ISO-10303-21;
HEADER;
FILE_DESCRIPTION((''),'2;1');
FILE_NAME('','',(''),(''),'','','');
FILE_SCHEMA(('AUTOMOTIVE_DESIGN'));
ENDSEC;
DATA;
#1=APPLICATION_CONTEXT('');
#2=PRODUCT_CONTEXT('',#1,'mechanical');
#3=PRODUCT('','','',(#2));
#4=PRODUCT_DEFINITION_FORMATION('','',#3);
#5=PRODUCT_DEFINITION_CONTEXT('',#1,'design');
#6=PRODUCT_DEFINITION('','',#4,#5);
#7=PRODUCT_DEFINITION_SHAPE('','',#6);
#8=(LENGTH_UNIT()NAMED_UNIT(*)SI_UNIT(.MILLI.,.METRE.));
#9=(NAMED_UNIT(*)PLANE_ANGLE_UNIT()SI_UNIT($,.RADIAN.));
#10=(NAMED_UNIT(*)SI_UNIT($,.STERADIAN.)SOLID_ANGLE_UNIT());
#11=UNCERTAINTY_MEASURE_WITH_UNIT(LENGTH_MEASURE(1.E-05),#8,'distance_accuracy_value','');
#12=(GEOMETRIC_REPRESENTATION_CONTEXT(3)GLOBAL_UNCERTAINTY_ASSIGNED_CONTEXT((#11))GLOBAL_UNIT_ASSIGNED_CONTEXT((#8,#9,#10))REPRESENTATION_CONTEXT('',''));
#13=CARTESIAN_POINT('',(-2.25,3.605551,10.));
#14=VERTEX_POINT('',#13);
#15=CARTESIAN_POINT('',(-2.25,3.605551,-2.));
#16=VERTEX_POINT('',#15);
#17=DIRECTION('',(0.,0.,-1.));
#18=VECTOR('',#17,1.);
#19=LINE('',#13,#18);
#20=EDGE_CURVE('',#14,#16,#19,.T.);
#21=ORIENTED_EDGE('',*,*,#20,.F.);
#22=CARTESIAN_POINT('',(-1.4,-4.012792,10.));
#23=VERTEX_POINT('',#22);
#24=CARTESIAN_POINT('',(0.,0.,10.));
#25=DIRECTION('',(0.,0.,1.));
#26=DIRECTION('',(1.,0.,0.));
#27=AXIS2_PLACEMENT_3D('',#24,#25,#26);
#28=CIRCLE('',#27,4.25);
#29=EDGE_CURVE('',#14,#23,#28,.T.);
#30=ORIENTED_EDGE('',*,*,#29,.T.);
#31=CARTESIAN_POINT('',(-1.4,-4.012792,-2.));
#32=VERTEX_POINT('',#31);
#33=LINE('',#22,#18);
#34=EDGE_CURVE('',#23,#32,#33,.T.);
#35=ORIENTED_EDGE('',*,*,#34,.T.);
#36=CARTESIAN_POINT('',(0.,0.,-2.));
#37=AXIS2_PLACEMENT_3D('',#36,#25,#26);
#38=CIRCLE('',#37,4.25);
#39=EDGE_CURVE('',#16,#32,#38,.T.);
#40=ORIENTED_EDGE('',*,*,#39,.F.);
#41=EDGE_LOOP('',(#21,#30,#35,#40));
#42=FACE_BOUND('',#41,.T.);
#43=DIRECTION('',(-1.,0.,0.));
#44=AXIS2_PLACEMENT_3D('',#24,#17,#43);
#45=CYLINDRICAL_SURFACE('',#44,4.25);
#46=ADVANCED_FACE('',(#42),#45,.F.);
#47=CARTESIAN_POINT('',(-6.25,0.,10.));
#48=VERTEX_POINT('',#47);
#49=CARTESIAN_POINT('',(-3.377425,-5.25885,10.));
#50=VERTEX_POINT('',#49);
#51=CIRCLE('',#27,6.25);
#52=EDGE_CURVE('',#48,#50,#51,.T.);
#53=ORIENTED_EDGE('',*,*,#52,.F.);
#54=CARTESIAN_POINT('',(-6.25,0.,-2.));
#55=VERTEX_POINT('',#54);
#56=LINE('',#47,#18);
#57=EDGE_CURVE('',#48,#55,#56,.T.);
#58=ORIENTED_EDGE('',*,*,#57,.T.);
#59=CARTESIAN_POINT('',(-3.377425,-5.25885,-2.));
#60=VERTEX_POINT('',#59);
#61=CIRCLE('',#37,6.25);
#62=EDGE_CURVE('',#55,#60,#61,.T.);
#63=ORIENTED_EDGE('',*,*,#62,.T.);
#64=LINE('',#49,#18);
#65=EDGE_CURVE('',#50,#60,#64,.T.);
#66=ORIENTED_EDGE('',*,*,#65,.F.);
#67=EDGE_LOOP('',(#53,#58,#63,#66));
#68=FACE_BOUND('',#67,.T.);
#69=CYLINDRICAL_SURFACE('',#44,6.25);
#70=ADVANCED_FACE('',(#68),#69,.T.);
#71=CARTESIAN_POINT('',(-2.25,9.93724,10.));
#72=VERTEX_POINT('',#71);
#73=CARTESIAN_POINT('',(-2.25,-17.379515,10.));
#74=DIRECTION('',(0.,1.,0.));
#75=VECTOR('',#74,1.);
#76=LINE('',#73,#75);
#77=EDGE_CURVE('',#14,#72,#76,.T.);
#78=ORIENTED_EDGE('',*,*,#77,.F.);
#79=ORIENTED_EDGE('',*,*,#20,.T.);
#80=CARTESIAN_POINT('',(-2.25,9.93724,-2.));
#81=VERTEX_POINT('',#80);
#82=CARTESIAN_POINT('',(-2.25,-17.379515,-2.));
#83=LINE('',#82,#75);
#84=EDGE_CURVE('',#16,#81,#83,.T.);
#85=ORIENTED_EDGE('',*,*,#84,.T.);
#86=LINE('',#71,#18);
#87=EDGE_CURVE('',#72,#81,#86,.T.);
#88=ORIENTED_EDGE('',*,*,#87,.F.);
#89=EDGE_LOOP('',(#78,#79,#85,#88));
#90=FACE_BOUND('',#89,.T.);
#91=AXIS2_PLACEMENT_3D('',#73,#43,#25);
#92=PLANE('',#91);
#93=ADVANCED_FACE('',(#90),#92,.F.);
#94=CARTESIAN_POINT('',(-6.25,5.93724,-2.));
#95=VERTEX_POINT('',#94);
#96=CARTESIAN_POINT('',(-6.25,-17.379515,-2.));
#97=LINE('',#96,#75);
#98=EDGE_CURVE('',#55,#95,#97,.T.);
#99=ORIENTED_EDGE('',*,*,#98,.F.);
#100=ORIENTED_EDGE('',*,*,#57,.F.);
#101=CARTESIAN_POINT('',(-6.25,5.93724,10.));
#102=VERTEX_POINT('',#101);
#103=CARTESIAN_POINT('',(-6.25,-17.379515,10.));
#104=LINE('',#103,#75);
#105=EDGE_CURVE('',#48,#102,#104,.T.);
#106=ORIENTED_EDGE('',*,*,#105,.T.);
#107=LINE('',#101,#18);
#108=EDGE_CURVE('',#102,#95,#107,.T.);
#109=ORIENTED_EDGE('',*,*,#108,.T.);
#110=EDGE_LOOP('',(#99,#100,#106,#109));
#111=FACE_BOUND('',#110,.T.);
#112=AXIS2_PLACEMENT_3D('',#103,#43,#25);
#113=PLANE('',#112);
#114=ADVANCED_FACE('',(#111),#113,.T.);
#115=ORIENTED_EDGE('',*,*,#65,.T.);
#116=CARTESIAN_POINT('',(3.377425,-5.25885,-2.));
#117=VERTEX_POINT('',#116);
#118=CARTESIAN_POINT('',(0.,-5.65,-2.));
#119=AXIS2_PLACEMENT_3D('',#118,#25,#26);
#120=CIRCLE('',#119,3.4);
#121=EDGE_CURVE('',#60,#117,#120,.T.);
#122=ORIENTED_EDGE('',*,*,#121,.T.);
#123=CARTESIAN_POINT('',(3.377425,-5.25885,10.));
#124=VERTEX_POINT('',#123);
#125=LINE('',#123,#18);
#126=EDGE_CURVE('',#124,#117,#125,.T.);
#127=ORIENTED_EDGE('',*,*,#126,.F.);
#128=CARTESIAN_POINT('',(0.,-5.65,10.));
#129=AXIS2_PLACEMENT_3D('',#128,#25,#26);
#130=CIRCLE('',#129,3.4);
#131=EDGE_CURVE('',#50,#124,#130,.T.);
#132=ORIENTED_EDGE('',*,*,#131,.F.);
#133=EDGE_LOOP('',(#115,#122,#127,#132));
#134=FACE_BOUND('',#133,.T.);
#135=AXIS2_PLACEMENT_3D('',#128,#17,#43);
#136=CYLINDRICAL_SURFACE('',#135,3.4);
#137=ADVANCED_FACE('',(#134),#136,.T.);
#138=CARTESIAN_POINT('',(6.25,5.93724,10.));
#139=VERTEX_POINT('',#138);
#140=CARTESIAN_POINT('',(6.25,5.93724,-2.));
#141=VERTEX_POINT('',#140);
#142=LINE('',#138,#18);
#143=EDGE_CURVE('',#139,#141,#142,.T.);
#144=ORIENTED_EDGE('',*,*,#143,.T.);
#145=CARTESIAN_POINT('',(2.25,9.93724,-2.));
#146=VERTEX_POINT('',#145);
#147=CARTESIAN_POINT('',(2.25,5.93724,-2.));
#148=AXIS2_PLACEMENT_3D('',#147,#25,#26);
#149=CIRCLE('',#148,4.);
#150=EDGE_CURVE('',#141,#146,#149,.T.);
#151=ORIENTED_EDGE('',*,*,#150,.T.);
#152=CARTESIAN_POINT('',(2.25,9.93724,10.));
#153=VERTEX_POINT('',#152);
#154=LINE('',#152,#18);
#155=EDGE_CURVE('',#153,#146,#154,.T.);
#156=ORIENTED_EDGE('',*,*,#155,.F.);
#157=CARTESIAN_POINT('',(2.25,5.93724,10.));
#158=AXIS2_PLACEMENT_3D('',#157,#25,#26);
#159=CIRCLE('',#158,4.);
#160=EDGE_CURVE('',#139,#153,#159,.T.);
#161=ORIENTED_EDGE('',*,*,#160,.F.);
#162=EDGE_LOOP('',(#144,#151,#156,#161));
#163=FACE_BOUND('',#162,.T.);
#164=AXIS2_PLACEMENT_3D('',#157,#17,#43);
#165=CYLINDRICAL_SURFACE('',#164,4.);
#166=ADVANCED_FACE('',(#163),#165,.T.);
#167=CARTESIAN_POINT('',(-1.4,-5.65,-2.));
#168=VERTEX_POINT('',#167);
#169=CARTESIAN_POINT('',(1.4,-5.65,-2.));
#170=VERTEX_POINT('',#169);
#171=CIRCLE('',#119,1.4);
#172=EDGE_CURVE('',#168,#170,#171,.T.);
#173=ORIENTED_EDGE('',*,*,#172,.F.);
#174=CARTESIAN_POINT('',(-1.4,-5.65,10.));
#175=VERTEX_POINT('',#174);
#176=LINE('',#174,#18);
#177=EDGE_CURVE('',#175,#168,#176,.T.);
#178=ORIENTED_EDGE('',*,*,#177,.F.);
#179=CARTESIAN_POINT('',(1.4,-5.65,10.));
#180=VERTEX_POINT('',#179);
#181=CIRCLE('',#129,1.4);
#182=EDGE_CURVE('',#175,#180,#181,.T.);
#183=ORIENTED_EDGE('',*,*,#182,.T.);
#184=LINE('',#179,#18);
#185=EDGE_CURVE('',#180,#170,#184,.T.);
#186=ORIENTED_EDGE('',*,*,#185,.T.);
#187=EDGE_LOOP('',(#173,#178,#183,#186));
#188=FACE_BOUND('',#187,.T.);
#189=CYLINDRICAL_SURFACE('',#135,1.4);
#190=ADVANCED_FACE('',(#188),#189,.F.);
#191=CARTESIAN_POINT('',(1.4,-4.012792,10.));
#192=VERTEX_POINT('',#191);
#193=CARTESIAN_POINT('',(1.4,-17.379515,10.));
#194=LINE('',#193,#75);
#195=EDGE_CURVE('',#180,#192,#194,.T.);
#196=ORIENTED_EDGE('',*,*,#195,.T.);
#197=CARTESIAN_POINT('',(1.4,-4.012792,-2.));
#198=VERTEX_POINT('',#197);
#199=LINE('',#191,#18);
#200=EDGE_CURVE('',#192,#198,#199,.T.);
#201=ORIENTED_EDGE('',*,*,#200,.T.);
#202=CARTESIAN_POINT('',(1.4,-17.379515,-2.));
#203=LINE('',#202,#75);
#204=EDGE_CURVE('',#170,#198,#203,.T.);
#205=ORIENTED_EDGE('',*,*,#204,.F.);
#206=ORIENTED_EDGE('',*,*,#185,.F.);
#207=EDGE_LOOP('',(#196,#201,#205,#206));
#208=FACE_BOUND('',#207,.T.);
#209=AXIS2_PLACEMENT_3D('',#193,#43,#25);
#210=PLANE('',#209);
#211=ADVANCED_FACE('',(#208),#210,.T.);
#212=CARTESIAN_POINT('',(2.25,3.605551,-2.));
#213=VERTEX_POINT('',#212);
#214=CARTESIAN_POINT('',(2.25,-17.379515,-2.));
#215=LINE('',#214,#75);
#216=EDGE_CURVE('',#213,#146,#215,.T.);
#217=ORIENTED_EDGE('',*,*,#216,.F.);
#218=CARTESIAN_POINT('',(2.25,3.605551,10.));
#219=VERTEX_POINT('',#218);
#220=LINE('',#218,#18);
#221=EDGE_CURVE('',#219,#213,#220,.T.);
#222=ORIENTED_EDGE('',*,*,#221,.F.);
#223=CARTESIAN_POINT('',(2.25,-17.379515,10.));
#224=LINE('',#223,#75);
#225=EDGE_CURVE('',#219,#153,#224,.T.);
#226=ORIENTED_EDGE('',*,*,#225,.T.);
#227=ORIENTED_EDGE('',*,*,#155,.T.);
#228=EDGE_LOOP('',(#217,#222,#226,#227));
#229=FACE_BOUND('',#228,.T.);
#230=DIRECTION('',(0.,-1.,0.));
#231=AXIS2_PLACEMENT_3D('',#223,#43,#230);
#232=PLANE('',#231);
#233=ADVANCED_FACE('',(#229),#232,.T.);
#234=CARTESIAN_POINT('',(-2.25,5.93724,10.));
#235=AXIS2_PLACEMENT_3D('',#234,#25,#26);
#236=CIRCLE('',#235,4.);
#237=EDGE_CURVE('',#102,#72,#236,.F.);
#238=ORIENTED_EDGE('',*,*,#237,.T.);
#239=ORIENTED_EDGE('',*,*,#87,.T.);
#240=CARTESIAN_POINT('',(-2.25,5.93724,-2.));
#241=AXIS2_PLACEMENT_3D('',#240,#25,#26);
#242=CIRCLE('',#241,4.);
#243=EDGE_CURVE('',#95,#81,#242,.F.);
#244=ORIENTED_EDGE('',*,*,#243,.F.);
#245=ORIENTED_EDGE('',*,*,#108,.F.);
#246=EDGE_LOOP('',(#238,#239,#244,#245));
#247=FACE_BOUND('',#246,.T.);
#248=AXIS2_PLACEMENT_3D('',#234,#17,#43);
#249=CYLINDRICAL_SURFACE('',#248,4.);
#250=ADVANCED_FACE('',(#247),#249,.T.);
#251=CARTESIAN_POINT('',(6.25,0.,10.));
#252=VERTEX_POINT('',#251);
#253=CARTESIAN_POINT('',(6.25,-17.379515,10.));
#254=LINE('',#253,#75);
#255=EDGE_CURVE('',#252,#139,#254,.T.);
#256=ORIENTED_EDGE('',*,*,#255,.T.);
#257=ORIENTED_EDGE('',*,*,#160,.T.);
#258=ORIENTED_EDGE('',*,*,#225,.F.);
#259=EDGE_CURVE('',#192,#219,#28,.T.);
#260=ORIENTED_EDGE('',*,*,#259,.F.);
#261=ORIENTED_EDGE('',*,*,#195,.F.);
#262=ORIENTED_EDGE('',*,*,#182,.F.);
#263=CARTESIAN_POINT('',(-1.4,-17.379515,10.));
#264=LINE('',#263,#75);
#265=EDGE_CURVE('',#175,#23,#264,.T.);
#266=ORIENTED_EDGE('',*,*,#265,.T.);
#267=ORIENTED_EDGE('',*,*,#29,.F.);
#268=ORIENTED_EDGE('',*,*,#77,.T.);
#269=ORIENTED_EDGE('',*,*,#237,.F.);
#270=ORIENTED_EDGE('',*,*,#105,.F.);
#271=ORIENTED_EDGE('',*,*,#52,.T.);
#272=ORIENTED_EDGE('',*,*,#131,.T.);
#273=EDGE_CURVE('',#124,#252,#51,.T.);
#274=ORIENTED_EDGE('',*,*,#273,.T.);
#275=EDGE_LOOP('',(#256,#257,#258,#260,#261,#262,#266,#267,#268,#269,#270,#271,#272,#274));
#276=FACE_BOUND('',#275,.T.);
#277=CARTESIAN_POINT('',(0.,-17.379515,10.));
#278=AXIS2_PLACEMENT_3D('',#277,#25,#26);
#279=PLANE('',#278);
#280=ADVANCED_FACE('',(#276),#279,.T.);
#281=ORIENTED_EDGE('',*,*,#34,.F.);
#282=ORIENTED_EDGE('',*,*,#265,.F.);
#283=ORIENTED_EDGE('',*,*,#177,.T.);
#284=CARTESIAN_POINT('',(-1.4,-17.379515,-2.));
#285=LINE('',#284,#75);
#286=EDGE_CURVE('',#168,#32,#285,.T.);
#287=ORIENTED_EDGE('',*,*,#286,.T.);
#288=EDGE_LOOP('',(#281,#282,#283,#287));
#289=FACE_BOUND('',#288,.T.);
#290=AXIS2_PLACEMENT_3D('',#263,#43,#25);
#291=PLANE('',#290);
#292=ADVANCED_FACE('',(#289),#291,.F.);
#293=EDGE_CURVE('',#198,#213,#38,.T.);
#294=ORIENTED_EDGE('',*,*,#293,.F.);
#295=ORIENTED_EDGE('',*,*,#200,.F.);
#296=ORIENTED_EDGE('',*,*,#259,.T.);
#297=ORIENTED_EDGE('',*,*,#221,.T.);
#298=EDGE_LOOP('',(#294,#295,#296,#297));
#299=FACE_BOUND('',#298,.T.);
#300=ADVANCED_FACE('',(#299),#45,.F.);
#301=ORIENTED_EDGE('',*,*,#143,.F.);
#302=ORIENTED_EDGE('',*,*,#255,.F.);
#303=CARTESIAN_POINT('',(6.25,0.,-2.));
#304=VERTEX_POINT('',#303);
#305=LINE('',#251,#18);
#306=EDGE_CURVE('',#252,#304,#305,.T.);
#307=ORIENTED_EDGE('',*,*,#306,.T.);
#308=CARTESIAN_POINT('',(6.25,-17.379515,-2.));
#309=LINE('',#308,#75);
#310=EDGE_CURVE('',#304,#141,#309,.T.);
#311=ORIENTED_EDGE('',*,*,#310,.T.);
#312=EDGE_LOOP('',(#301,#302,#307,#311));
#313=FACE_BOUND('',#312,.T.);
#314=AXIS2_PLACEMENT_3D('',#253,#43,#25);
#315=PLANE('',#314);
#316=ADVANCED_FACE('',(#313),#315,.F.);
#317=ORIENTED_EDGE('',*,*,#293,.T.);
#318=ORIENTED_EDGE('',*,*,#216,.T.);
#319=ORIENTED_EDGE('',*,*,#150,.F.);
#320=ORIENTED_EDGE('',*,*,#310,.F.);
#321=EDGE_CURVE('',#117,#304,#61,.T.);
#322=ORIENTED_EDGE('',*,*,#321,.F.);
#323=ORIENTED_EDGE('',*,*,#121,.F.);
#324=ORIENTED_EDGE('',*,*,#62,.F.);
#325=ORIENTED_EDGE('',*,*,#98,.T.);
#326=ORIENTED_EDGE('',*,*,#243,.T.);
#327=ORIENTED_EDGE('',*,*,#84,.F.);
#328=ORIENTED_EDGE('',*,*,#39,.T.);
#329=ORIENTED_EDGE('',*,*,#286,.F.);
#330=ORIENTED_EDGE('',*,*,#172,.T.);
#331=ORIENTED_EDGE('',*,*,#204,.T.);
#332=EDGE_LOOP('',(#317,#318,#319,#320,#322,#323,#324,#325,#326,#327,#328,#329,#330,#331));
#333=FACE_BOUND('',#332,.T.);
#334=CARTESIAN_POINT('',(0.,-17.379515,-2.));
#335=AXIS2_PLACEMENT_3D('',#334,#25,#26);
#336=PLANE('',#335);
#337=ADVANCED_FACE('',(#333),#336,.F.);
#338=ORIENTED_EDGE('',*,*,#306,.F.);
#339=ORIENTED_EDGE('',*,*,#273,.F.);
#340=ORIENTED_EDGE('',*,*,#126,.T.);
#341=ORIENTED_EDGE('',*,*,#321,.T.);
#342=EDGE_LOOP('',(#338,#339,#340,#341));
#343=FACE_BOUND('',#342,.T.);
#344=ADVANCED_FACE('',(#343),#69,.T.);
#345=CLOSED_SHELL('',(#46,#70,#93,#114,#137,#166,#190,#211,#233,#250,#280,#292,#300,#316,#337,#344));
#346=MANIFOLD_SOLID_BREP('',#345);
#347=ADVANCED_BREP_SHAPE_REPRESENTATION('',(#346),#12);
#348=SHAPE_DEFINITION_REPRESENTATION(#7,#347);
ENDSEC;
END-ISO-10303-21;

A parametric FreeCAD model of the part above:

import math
import FreeCAD as App
import Part
import Sketcher

doc = App.newDocument("Part")
params = doc.addObject("Spreadsheet::Sheet", "Params")
for row, (alias, value) in enumerate([
    ("sketch1_radius", "4 mm"),
    ("sketch1_radius2", "1.4 mm"),
    ("sketch1_radius3", "3.4 mm"),
    ("sketch1_radius4", "4.25 mm"),
    ("sketch1_radius5", "6.25 mm"),
    ("pad1_length", "10 mm"),
    ("sketch2_radius", "4 mm"),
    ("sketch2_radius2", "1.4 mm"),
    ("sketch2_radius3", "3.4 mm"),
    ("sketch2_radius4", "4.25 mm"),
    ("sketch2_radius5", "6.25 mm"),
    ("pad2_length", "2 mm"),
], start=1):
    params.set(f"A{row}", alias)
    params.set(f"B{row}", "=" + value)
    params.setAlias(f"B{row}", alias)

body = doc.addObject("PartDesign::Body", "Body")

sketch1 = doc.addObject("Sketcher::SketchObject", "Sketch")
body.addObject(sketch1)
sketch1.AttachmentSupport = (doc.XY_Plane, [""])
sketch1.MapMode = "FlatFace"
sketch1.addGeometry([
    Part.ArcOfCircle(Part.Circle(App.Vector(0, 0, 0), App.Vector(0, 0, 1), 4.25), math.radians(-70.766924), math.radians(58.034281)),
    Part.LineSegment(App.Vector(1.4, -4.012792, 0), App.Vector(1.4, -5.65, 0)),
    Part.ArcOfCircle(Part.Circle(App.Vector(0, -5.65, 0), App.Vector(0, 0, 1), 1.4), math.radians(180), math.radians(360)),
    Part.LineSegment(App.Vector(-1.4, -5.65, 0), App.Vector(-1.4, -4.012792, 0)),
    Part.ArcOfCircle(Part.Circle(App.Vector(0, 0, 0), App.Vector(0, 0, 1), 4.25), math.radians(121.965719), math.radians(250.766924)),
    Part.LineSegment(App.Vector(-2.25, 3.605551, 0), App.Vector(-2.25, 9.93724, 0)),
    Part.ArcOfCircle(Part.Circle(App.Vector(-2.25, 5.93724, 0), App.Vector(0, 0, 1), 4), math.radians(90), math.radians(180)),
    Part.LineSegment(App.Vector(-6.25, 5.93724, 0), App.Vector(-6.25, 0, 0)),
    Part.ArcOfCircle(Part.Circle(App.Vector(0, 0, 0), App.Vector(0, 0, 1), 6.25), math.radians(-180), math.radians(-122.710058)),
    Part.ArcOfCircle(Part.Circle(App.Vector(0, -5.65, 0), App.Vector(0, 0, 1), 3.4), math.radians(173.393823), math.radians(366.606177)),
    Part.ArcOfCircle(Part.Circle(App.Vector(0, 0, 0), App.Vector(0, 0, 1), 6.25), math.radians(-57.289942), math.radians(0)),
    Part.LineSegment(App.Vector(6.25, 0, 0), App.Vector(6.25, 5.93724, 0)),
    Part.ArcOfCircle(Part.Circle(App.Vector(2.25, 5.93724, 0), App.Vector(0, 0, 1), 4), math.radians(0), math.radians(90)),
    Part.LineSegment(App.Vector(2.25, 9.93724, 0), App.Vector(2.25, 3.605551, 0)),
], False)
sketch1.addConstraint([
    Sketcher.Constraint("Coincident", 0, 1, 1, 1),
    Sketcher.Constraint("Tangent", 1, 2, 2, 2),
    Sketcher.Constraint("Tangent", 2, 1, 3, 1),
    Sketcher.Constraint("Coincident", 3, 2, 4, 2),
    Sketcher.Constraint("Coincident", 4, 1, 5, 1),
    Sketcher.Constraint("Coincident", 5, 2, 6, 1),
    Sketcher.Constraint("Tangent", 6, 2, 7, 1),
    Sketcher.Constraint("Tangent", 7, 2, 8, 1),
    Sketcher.Constraint("Coincident", 8, 2, 9, 1),
    Sketcher.Constraint("Coincident", 9, 2, 10, 1),
    Sketcher.Constraint("Tangent", 10, 2, 11, 1),
    Sketcher.Constraint("Tangent", 11, 2, 12, 1),
    Sketcher.Constraint("Coincident", 12, 2, 13, 1),
    Sketcher.Constraint("Coincident", 13, 2, 0, 2),
    Sketcher.Constraint("Vertical", 1),
    Sketcher.Constraint("Vertical", 3),
    Sketcher.Constraint("Vertical", 5),
    Sketcher.Constraint("Vertical", 7),
    Sketcher.Constraint("Vertical", 11),
    Sketcher.Constraint("Vertical", 13),
    Sketcher.Constraint("Coincident", 0, 3, -1, 1),
    Sketcher.Constraint("Coincident", 4, 3, -1, 1),
    Sketcher.Constraint("Coincident", 8, 3, -1, 1),
    Sketcher.Constraint("Coincident", 10, 3, -1, 1),
    Sketcher.Constraint("Coincident", 9, 3, 2, 3),
    Sketcher.Constraint("Equal", 0, 4),
    Sketcher.Constraint("Equal", 8, 10),
    Sketcher.Constraint("Equal", 6, 12),
    Sketcher.Constraint("Symmetric", 5, 2, 12, 2, -2),
    Sketcher.Constraint("PointOnObject", 2, 3, -2),
    Sketcher.Constraint("Vertical", 6, 3, 4, 1),
    Sketcher.Constraint("Radius", 6, 4.0),
    Sketcher.Constraint("Radius", 2, 1.4),
    Sketcher.Constraint("Radius", 9, 3.4),
    Sketcher.Constraint("Radius", 0, 4.25),
    Sketcher.Constraint("Radius", 8, 6.25),
    Sketcher.Constraint("DistanceY", 2, 3, -1, 1, 5.65),
    Sketcher.Constraint("DistanceY", 5, 1, 5, 2, 6.331689),
])
sketch1.setExpression("Constraints[31]", "Params.sketch1_radius")
sketch1.setExpression("Constraints[32]", "Params.sketch1_radius2")
sketch1.setExpression("Constraints[33]", "Params.sketch1_radius3")
sketch1.setExpression("Constraints[34]", "Params.sketch1_radius4")
sketch1.setExpression("Constraints[35]", "Params.sketch1_radius5")
pad1 = doc.addObject("PartDesign::Pad", "Pad")
body.addObject(pad1)
pad1.Profile = sketch1
pad1.setExpression("Length", "Params.pad1_length")

sketch2 = doc.addObject("Sketcher::SketchObject", "Sketch001")
body.addObject(sketch2)
sketch2.AttachmentSupport = (doc.XY_Plane, [""])
sketch2.MapMode = "FlatFace"
sketch2.addGeometry([
    Part.ArcOfCircle(Part.Circle(App.Vector(0, 0, 0), App.Vector(0, 0, 1), 4.25), math.radians(-70.766924), math.radians(58.034281)),
    Part.LineSegment(App.Vector(1.4, -4.012792, 0), App.Vector(1.4, -5.65, 0)),
    Part.ArcOfCircle(Part.Circle(App.Vector(0, -5.65, 0), App.Vector(0, 0, 1), 1.4), math.radians(180), math.radians(360)),
    Part.LineSegment(App.Vector(-1.4, -5.65, 0), App.Vector(-1.4, -4.012792, 0)),
    Part.ArcOfCircle(Part.Circle(App.Vector(0, 0, 0), App.Vector(0, 0, 1), 4.25), math.radians(121.965719), math.radians(250.766924)),
    Part.LineSegment(App.Vector(-2.25, 3.605551, 0), App.Vector(-2.25, 9.93724, 0)),
    Part.ArcOfCircle(Part.Circle(App.Vector(-2.25, 5.93724, 0), App.Vector(0, 0, 1), 4), math.radians(90), math.radians(180)),
    Part.LineSegment(App.Vector(-6.25, 5.93724, 0), App.Vector(-6.25, 0, 0)),
    Part.ArcOfCircle(Part.Circle(App.Vector(0, 0, 0), App.Vector(0, 0, 1), 6.25), math.radians(-180), math.radians(-122.710058)),
    Part.ArcOfCircle(Part.Circle(App.Vector(0, -5.65, 0), App.Vector(0, 0, 1), 3.4), math.radians(173.393823), math.radians(366.606177)),
    Part.ArcOfCircle(Part.Circle(App.Vector(0, 0, 0), App.Vector(0, 0, 1), 6.25), math.radians(-57.289942), math.radians(0)),
    Part.LineSegment(App.Vector(6.25, 0, 0), App.Vector(6.25, 5.93724, 0)),
    Part.ArcOfCircle(Part.Circle(App.Vector(2.25, 5.93724, 0), App.Vector(0, 0, 1), 4), math.radians(0), math.radians(90)),
    Part.LineSegment(App.Vector(2.25, 9.93724, 0), App.Vector(2.25, 3.605551, 0)),
], False)
sketch2.addConstraint([
    Sketcher.Constraint("Coincident", 0, 1, 1, 1),
    Sketcher.Constraint("Tangent", 1, 2, 2, 2),
    Sketcher.Constraint("Tangent", 2, 1, 3, 1),
    Sketcher.Constraint("Coincident", 3, 2, 4, 2),
    Sketcher.Constraint("Coincident", 4, 1, 5, 1),
    Sketcher.Constraint("Coincident", 5, 2, 6, 1),
    Sketcher.Constraint("Tangent", 6, 2, 7, 1),
    Sketcher.Constraint("Tangent", 7, 2, 8, 1),
    Sketcher.Constraint("Coincident", 8, 2, 9, 1),
    Sketcher.Constraint("Coincident", 9, 2, 10, 1),
    Sketcher.Constraint("Tangent", 10, 2, 11, 1),
    Sketcher.Constraint("Tangent", 11, 2, 12, 1),
    Sketcher.Constraint("Coincident", 12, 2, 13, 1),
    Sketcher.Constraint("Coincident", 13, 2, 0, 2),
    Sketcher.Constraint("Vertical", 1),
    Sketcher.Constraint("Vertical", 3),
    Sketcher.Constraint("Vertical", 5),
    Sketcher.Constraint("Vertical", 7),
    Sketcher.Constraint("Vertical", 11),
    Sketcher.Constraint("Vertical", 13),
    Sketcher.Constraint("Coincident", 0, 3, -1, 1),
    Sketcher.Constraint("Coincident", 4, 3, -1, 1),
    Sketcher.Constraint("Coincident", 8, 3, -1, 1),
    Sketcher.Constraint("Coincident", 10, 3, -1, 1),
    Sketcher.Constraint("Coincident", 9, 3, 2, 3),
    Sketcher.Constraint("Equal", 0, 4),
    Sketcher.Constraint("Equal", 8, 10),
    Sketcher.Constraint("Equal", 6, 12),
    Sketcher.Constraint("Symmetric", 5, 2, 12, 2, -2),
    Sketcher.Constraint("PointOnObject", 2, 3, -2),
    Sketcher.Constraint("Vertical", 6, 3, 4, 1),
    Sketcher.Constraint("Radius", 6, 4.0),
    Sketcher.Constraint("Radius", 2, 1.4),
    Sketcher.Constraint("Radius", 9, 3.4),
    Sketcher.Constraint("Radius", 0, 4.25),
    Sketcher.Constraint("Radius", 8, 6.25),
    Sketcher.Constraint("DistanceY", 2, 3, -1, 1, 5.65),
    Sketcher.Constraint("DistanceY", 5, 1, 5, 2, 6.331689),
])
sketch2.setExpression("Constraints[31]", "Params.sketch2_radius")
sketch2.setExpression("Constraints[32]", "Params.sketch2_radius2")
sketch2.setExpression("Constraints[33]", "Params.sketch2_radius3")
sketch2.setExpression("Constraints[34]", "Params.sketch2_radius4")
sketch2.setExpression("Constraints[35]", "Params.sketch2_radius5")
pad2 = doc.addObject("PartDesign::Pad", "Pad001")
body.addObject(pad2)
pad2.Profile = sketch2
pad2.setExpression("Length", "Params.pad2_length")
pad2.Reversed = True

doc.recompute()
